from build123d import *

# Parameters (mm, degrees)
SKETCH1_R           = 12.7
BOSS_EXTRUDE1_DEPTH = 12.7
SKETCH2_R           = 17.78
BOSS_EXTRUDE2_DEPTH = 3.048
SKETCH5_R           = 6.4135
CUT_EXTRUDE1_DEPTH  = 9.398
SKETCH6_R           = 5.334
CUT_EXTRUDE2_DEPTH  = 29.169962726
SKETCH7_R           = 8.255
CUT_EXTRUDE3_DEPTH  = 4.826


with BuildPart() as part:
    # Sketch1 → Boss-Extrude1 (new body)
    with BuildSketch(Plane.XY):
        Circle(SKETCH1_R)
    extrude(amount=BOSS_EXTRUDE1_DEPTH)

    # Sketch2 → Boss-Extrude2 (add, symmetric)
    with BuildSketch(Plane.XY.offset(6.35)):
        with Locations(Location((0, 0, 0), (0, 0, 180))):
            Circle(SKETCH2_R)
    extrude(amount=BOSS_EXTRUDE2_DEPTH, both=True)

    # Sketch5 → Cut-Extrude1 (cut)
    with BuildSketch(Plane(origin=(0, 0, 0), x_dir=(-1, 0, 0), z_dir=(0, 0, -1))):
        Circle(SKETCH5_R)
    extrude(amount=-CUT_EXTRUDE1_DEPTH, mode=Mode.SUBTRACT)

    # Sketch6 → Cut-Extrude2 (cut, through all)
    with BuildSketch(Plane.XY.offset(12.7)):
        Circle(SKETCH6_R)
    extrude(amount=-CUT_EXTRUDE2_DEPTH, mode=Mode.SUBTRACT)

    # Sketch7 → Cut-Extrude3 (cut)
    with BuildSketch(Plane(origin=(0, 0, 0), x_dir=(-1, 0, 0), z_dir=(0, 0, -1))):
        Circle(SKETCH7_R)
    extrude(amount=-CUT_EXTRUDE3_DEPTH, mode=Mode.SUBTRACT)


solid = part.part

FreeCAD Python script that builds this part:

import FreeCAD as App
import Part
import Sketcher
from FreeCAD import Vector
Q = App.Units.Quantity

doc = App.newDocument("Part")
params = doc.addObject("Spreadsheet::Sheet", "Params")
for row, (alias, value) in enumerate([
    ("sketch1_diameter", "1 in"),
    ("pad1_length", "0.5 in"),
    ("sketch2_diameter", "1.4 in"),
    ("pad2_length", "0.24 in"),
    ("sketch3_diameter", "0.505 in"),
    ("pocket1_length", "0.37 in"),
    ("sketch4_diameter", "0.42 in"),
    ("sketch5_diameter", "0.65 in"),
    ("pocket3_length", "0.19 in"),
], start=1):
    params.set(f"A{row}", alias)
    params.set(f"B{row}", "=" + value)
    params.setAlias(f"B{row}", alias)

body = doc.addObject("PartDesign::Body", "Body")

sketch1 = body.newObject("Sketcher::SketchObject", "Sketch")
sketch1.AttachmentSupport = (doc.getObject("XY_Plane"), [""])
sketch1.MapMode = "FlatFace"
sketch1.addGeometry(Part.Circle(Vector(0, 0, 0), Vector(0, 0, 1), 13), False)
sketch1.addConstraint(Sketcher.Constraint("Coincident", 0, 3, -1, 1))
sketch1.addConstraint(Sketcher.Constraint("Diameter", 0, Q("1 in")))
sketch1.setExpression("Constraints[1]", "Params.sketch1_diameter")
pad1 = body.newObject("PartDesign::Pad", "Pad")
pad1.Profile = sketch1
pad1.setExpression("Length", "Params.pad1_length")

sketch2 = body.newObject("Sketcher::SketchObject", "Sketch001")
sketch2.AttachmentSupport = (doc.getObject("XY_Plane"), [""])
sketch2.MapMode = "FlatFace"
sketch2.AttachmentOffset = App.Placement(Vector(0, 0, 0.25 * 25.4), App.Rotation())
sketch2.addGeometry(Part.Circle(Vector(0, 0, 0), Vector(0, 0, 1), 18), False)
sketch2.addConstraint(Sketcher.Constraint("Coincident", 0, 3, -1, 1))
sketch2.addConstraint(Sketcher.Constraint("Diameter", 0, Q("1.4 in")))
sketch2.setExpression("Constraints[1]", "Params.sketch2_diameter")
pad2 = body.newObject("PartDesign::Pad", "Pad001")
pad2.Profile = sketch2
pad2.setExpression("Length", "Params.pad2_length")
pad2.Midplane = True

sketch3 = body.newObject("Sketcher::SketchObject", "Sketch002")
sketch3.AttachmentSupport = (doc.getObject("XY_Plane"), [""])
sketch3.MapMode = "FlatFace"
sketch3.addGeometry(Part.Circle(Vector(0, 0, 0), Vector(0, 0, 1), 6), False)
sketch3.addConstraint(Sketcher.Constraint("Coincident", 0, 3, -1, 1))
sketch3.addConstraint(Sketcher.Constraint("Diameter", 0, Q("0.505 in")))
sketch3.setExpression("Constraints[1]", "Params.sketch3_diameter")
pocket1 = body.newObject("PartDesign::Pocket", "Pocket")
pocket1.Profile = sketch3
pocket1.setExpression("Length", "Params.pocket1_length")
pocket1.Reversed = True

sketch4 = body.newObject("Sketcher::SketchObject", "Sketch003")
sketch4.AttachmentSupport = (doc.getObject("XY_Plane"), [""])
sketch4.MapMode = "FlatFace"
sketch4.AttachmentOffset = App.Placement(Vector(0, 0, 0.5 * 25.4), App.Rotation())
sketch4.addGeometry(Part.Circle(Vector(0, 0, 0), Vector(0, 0, 1), 5), False)
sketch4.addConstraint(Sketcher.Constraint("Coincident", 0, 3, -1, 1))
sketch4.addConstraint(Sketcher.Constraint("Diameter", 0, Q("0.42 in")))
sketch4.setExpression("Constraints[1]", "Params.sketch4_diameter")
pocket2 = body.newObject("PartDesign::Pocket", "Pocket001")
pocket2.Profile = sketch4
pocket2.Type = "ThroughAll"

sketch5 = body.newObject("Sketcher::SketchObject", "Sketch004")
sketch5.AttachmentSupport = (doc.getObject("XY_Plane"), [""])
sketch5.MapMode = "FlatFace"
sketch5.addGeometry(Part.Circle(Vector(0, 0, 0), Vector(0, 0, 1), 8), False)
sketch5.addConstraint(Sketcher.Constraint("Coincident", 0, 3, -1, 1))
sketch5.addConstraint(Sketcher.Constraint("Diameter", 0, Q("0.65 in")))
sketch5.setExpression("Constraints[1]", "Params.sketch5_diameter")
pocket3 = body.newObject("PartDesign::Pocket", "Pocket002")
pocket3.Profile = sketch5
pocket3.setExpression("Length", "Params.pocket3_length")
pocket3.Reversed = True

doc.recompute()
